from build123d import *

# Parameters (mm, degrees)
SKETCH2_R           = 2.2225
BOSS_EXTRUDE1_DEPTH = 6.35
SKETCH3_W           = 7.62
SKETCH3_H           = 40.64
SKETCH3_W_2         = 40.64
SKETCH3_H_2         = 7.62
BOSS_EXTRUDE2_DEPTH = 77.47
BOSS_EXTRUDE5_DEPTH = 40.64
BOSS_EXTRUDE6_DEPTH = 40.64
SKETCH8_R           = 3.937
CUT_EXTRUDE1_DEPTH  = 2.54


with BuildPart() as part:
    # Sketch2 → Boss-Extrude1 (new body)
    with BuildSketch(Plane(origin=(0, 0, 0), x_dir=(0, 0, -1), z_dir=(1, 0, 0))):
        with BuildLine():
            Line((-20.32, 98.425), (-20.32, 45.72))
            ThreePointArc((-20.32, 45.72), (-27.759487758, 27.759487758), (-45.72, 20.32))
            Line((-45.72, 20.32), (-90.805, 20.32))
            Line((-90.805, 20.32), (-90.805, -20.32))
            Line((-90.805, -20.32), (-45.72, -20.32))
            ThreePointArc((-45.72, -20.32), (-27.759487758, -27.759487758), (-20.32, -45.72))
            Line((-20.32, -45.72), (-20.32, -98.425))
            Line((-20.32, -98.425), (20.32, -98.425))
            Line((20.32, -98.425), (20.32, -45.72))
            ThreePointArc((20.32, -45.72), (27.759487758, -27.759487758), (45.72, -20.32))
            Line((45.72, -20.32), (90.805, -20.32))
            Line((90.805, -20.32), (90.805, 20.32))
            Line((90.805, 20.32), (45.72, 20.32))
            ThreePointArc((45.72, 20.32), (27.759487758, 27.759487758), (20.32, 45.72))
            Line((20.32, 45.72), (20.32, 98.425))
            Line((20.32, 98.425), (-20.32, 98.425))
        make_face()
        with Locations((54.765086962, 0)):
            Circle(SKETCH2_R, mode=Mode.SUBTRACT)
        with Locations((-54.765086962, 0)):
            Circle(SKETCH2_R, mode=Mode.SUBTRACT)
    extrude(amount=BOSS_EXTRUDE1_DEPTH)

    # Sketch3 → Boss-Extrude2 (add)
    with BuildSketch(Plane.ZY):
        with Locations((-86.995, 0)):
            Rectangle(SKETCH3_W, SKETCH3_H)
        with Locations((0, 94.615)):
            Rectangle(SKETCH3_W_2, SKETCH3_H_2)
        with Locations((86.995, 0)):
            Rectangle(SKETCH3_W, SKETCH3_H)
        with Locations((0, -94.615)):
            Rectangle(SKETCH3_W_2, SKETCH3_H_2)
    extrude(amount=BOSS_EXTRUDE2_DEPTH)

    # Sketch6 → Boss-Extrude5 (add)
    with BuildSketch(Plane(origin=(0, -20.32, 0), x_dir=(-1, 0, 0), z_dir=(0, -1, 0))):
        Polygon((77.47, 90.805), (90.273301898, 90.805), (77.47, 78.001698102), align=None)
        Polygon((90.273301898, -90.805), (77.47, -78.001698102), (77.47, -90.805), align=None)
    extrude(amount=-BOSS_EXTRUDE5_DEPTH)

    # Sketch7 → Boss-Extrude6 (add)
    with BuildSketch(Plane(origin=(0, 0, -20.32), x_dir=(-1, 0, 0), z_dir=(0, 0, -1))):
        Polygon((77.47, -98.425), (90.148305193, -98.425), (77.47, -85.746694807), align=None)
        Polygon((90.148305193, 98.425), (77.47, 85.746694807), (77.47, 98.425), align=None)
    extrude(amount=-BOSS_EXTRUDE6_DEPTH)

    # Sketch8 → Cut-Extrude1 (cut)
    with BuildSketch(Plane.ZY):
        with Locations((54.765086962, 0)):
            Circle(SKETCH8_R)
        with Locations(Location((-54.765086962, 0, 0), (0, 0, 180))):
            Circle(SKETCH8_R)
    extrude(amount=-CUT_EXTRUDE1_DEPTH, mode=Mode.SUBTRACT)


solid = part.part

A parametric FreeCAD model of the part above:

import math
import FreeCAD as App
import Part
import Sketcher

V = App.Vector
Q = App.Units.Quantity


def add_polygon(sketch, points):
    """Adds a closed chain of lines whose ends are joined by coincident constraints."""
    first, n = sketch.GeometryCount, len(points)
    for a, b in zip(points, points[1:] + points[:1]):
        sketch.addGeometry(Part.LineSegment(App.Vector(*a, 0), App.Vector(*b, 0)), False)
    for i in range(n):
        sketch.addConstraint(Sketcher.Constraint("Coincident", first + i, 2, first + (i + 1) % n, 1))

doc = App.newDocument("Part")
params = doc.addObject("Spreadsheet::Sheet", "Params")
for row, (alias, value) in enumerate([
    ("sketch1_radius", "1 in"),
    ("sketch1_diameter", "0.175 in"),
    ("sketch1_width", "1.6 in"),
    ("sketch1_width2", "2.075 in"),
    ("sketch1_height", "1.775 in"),
    ("pad1_length", "0.25 in"),
    ("sketch2_width", "1.6 in"),
    ("sketch2_width2", "0.3 in"),
    ("pad2_length", "3.05 in"),
    ("pad3_length", "1.6 in"),
    ("pad4_length", "1.6 in"),
    ("sketch5_diameter", "0.31 in"),
    ("pocket1_length", "0.1 in"),
], start=1):
    params.set(f"A{row}", alias)
    params.set(f"B{row}", "=" + value)
    params.setAlias(f"B{row}", alias)

body = doc.addObject("PartDesign::Body", "Body")

# Sketch on YZ plane
sketch1 = body.newObject("Sketcher::SketchObject", "Sketch")
sketch1.AttachmentSupport = (doc.getObject("YZ_Plane"), [""])
sketch1.MapMode = "FlatFace"
sketch1.addGeometry(Part.LineSegment(V(98.425, 20.32, 0), V(45.72, 20.32, 0)), False)
sketch1.addGeometry(Part.ArcOfCircle(Part.Circle(V(45.72, 45.72, 0), V(0, 0, 1), 25.4), math.radians(180), math.radians(270)), False)
sketch1.addGeometry(Part.LineSegment(V(20.32, 45.72, 0), V(20.32, 90.805, 0)), False)
sketch1.addGeometry(Part.LineSegment(V(20.32, 90.805, 0), V(-20.32, 90.805, 0)), False)
sketch1.addGeometry(Part.LineSegment(V(-20.32, 90.805, 0), V(-20.32, 45.72, 0)), False)
sketch1.addGeometry(Part.ArcOfCircle(Part.Circle(V(-45.72, 45.72, 0), V(0, 0, 1), 25.4), math.radians(-90), math.radians(0)), False)
sketch1.addGeometry(Part.LineSegment(V(-45.72, 20.32, 0), V(-98.425, 20.32, 0)), False)
sketch1.addGeometry(Part.LineSegment(V(-98.425, 20.32, 0), V(-98.425, -20.32, 0)), False)
sketch1.addGeometry(Part.LineSegment(V(-98.425, -20.32, 0), V(-45.72, -20.32, 0)), False)
sketch1.addGeometry(Part.ArcOfCircle(Part.Circle(V(-45.72, -45.72, 0), V(0, 0, 1), 25.4), math.radians(0), math.radians(90)), False)
sketch1.addGeometry(Part.LineSegment(V(-20.32, -45.72, 0), V(-20.32, -90.805, 0)), False)
sketch1.addGeometry(Part.LineSegment(V(-20.32, -90.805, 0), V(20.32, -90.805, 0)), False)
sketch1.addGeometry(Part.LineSegment(V(20.32, -90.805, 0), V(20.32, -45.72, 0)), False)
sketch1.addGeometry(Part.ArcOfCircle(Part.Circle(V(45.72, -45.72, 0), V(0, 0, 1), 25.4), math.radians(90), math.radians(180)), False)
sketch1.addGeometry(Part.LineSegment(V(45.72, -20.32, 0), V(98.425, -20.32, 0)), False)
sketch1.addGeometry(Part.LineSegment(V(98.425, -20.32, 0), V(98.425, 20.32, 0)), False)
sketch1.addGeometry(Part.Circle(V(0, 54.765087, 0), V(0, 0, 1), 2.2225), False)
sketch1.addGeometry(Part.Circle(V(0, -54.765087, 0), V(0, 0, 1), 2.2225), False)
sketch1.addConstraint(Sketcher.Constraint("Tangent", 0, 2, 1, 2))
sketch1.addConstraint(Sketcher.Constraint("Tangent", 1, 1, 2, 1))
sketch1.addConstraint(Sketcher.Constraint("Coincident", 2, 2, 3, 1))
sketch1.addConstraint(Sketcher.Constraint("Coincident", 3, 2, 4, 1))
sketch1.addConstraint(Sketcher.Constraint("Tangent", 4, 2, 5, 2))
sketch1.addConstraint(Sketcher.Constraint("Tangent", 5, 1, 6, 1))
sketch1.addConstraint(Sketcher.Constraint("Coincident", 6, 2, 7, 1))
sketch1.addConstraint(Sketcher.Constraint("Coincident", 7, 2, 8, 1))
sketch1.addConstraint(Sketcher.Constraint("Tangent", 8, 2, 9, 2))
sketch1.addConstraint(Sketcher.Constraint("Tangent", 9, 1, 10, 1))
sketch1.addConstraint(Sketcher.Constraint("Coincident", 10, 2, 11, 1))
sketch1.addConstraint(Sketcher.Constraint("Coincident", 11, 2, 12, 1))
sketch1.addConstraint(Sketcher.Constraint("Tangent", 12, 2, 13, 2))
sketch1.addConstraint(Sketcher.Constraint("Tangent", 13, 1, 14, 1))
sketch1.addConstraint(Sketcher.Constraint("Coincident", 14, 2, 15, 1))
sketch1.addConstraint(Sketcher.Constraint("Coincident", 15, 2, 0, 1))
sketch1.addConstraint(Sketcher.Constraint("Horizontal", 0))
sketch1.addConstraint(Sketcher.Constraint("Vertical", 2))
sketch1.addConstraint(Sketcher.Constraint("Horizontal", 3))
sketch1.addConstraint(Sketcher.Constraint("Vertical", 4))
sketch1.addConstraint(Sketcher.Constraint("Horizontal", 6))
sketch1.addConstraint(Sketcher.Constraint("Vertical", 7))
sketch1.addConstraint(Sketcher.Constraint("Horizontal", 8))
sketch1.addConstraint(Sketcher.Constraint("Vertical", 10))
sketch1.addConstraint(Sketcher.Constraint("Horizontal", 11))
sketch1.addConstraint(Sketcher.Constraint("Vertical", 12))
sketch1.addConstraint(Sketcher.Constraint("Horizontal", 14))
sketch1.addConstraint(Sketcher.Constraint("Vertical", 15))
sketch1.addConstraint(Sketcher.Constraint("Equal", 1, 5))
sketch1.addConstraint(Sketcher.Constraint("Equal", 5, 9))
sketch1.addConstraint(Sketcher.Constraint("Equal", 9, 13))
sketch1.addConstraint(Sketcher.Constraint("Equal", 16, 17))
sketch1.addConstraint(Sketcher.Constraint("Symmetric", 1, 3, 9, 3, -1, 1))
sketch1.addConstraint(Sketcher.Constraint("Symmetric", 5, 3, 13, 3, -1, 1))
sketch1.addConstraint(Sketcher.Constraint("Symmetric", 16, 3, 17, 3, -1, 1))
sketch1.addConstraint(Sketcher.Constraint("Symmetric", 1, 3, 5, 3, -2))
sketch1.addConstraint(Sketcher.Constraint("PointOnObject", 16, 3, -2))
sketch1.addConstraint(Sketcher.Constraint("Equal", 0, 6))
sketch1.addConstraint(Sketcher.Constraint("Equal", 11, 7))
sketch1.addConstraint(Sketcher.Constraint("Equal", 4, 10))
sketch1.addConstraint(Sketcher.Constraint("Radius", 1, Q("1 in")))
sketch1.addConstraint(Sketcher.Constraint("Diameter", 16, Q("0.175 in")))
sketch1.addConstraint(Sketcher.Constraint("DistanceX", 3, 2, 3, 1, Q("1.6 in")))
sketch1.addConstraint(Sketcher.Constraint("DistanceX", 0, 2, 0, 1, Q("2.075 in")))
sketch1.addConstraint(Sketcher.Constraint("DistanceY", 2, 1, 2, 2, Q("1.775 in")))
sketch1.addConstraint(Sketcher.Constraint("DistanceY", -1, 1, 16, 3, Q("54.765087 mm")))
sketch1.setExpression("Constraints[40]", "Params.sketch1_radius")
sketch1.setExpression("Constraints[41]", "Params.sketch1_diameter")
sketch1.setExpression("Constraints[42]", "Params.sketch1_width")
sketch1.setExpression("Constraints[43]", "Params.sketch1_width2")
sketch1.setExpression("Constraints[44]", "Params.sketch1_height")
pad1 = body.newObject("PartDesign::Pad", "Pad")
pad1.Profile = sketch1
pad1.setExpression("Length", "Params.pad1_length")

# Sketch on YZ plane
sketch2 = body.newObject("Sketcher::SketchObject", "Sketch001")
sketch2.AttachmentSupport = (doc.getObject("YZ_Plane"), [""])
sketch2.MapMode = "FlatFace"
add_polygon(sketch2, [(20.32, -90.805), (-20.32, -90.805), (-20.32, -83.185), (20.32, -83.185)])  # lines 0-3
add_polygon(sketch2, [(98.425, -20.32), (90.805, -20.32), (90.805, 20.32), (98.425, 20.32)])  # lines 4-7
add_polygon(sketch2, [(20.32, 83.185), (-20.32, 83.185), (-20.32, 90.805), (20.32, 90.805)])  # lines 8-11
add_polygon(sketch2, [(-90.805, -20.32), (-98.425, -20.32), (-98.425, 20.32), (-90.805, 20.32)])  # lines 12-15
sketch2.addConstraint(Sketcher.Constraint("Horizontal", 0))
sketch2.addConstraint(Sketcher.Constraint("Vertical", 1))
sketch2.addConstraint(Sketcher.Constraint("Horizontal", 2))
sketch2.addConstraint(Sketcher.Constraint("Vertical", 3))
sketch2.addConstraint(Sketcher.Constraint("Horizontal", 4))
sketch2.addConstraint(Sketcher.Constraint("Vertical", 5))
sketch2.addConstraint(Sketcher.Constraint("Horizontal", 6))
sketch2.addConstraint(Sketcher.Constraint("Vertical", 7))
sketch2.addConstraint(Sketcher.Constraint("Horizontal", 8))
sketch2.addConstraint(Sketcher.Constraint("Vertical", 9))
sketch2.addConstraint(Sketcher.Constraint("Horizontal", 10))
sketch2.addConstraint(Sketcher.Constraint("Vertical", 11))
sketch2.addConstraint(Sketcher.Constraint("Horizontal", 12))
sketch2.addConstraint(Sketcher.Constraint("Vertical", 13))
sketch2.addConstraint(Sketcher.Constraint("Horizontal", 14))
sketch2.addConstraint(Sketcher.Constraint("Vertical", 15))
sketch2.addConstraint(Sketcher.Constraint("Symmetric", 2, 2, 8, 2, -1, 1))
sketch2.addConstraint(Sketcher.Constraint("Symmetric", 0, 2, 10, 2, -1, 1))
sketch2.addConstraint(Sketcher.Constraint("Symmetric", 6, 2, 12, 2, -1, 1))
sketch2.addConstraint(Sketcher.Constraint("Symmetric", 4, 2, 14, 2, -1, 1))
sketch2.addConstraint(Sketcher.Constraint("Horizontal", 7, 2, 12, 2))
sketch2.addConstraint(Sketcher.Constraint("Vertical", 1, 2, 8, 2))
sketch2.addConstraint(Sketcher.Constraint("Equal", 14, 1))
sketch2.addConstraint(Sketcher.Constraint("Equal", 10, 5))
sketch2.addConstraint(Sketcher.Constraint("DistanceX", 0, 2, 0, 1, Q("1.6 in")))
sketch2.addConstraint(Sketcher.Constraint("DistanceX", 4, 2, 4, 1, Q("0.3 in")))
sketch2.addConstraint(Sketcher.Constraint("DistanceY", 1, 2, 8, 2, Q("6.55 in")))
sketch2.addConstraint(Sketcher.Constraint("DistanceX", -1, 1, 4, 2, Q("3.575 in")))
sketch2.setExpression("Constraints[40]", "Params.sketch2_width")
sketch2.setExpression("Constraints[41]", "Params.sketch2_width2")
pad2 = body.newObject("PartDesign::Pad", "Pad001")
pad2.Profile = sketch2
pad2.setExpression("Length", "Params.pad2_length")
pad2.Reversed = True

# Sketch on XZ plane
sketch3 = body.newObject("Sketcher::SketchObject", "Sketch002")
sketch3.AttachmentSupport = (doc.getObject("XZ_Plane"), [""])
sketch3.MapMode = "FlatFace"
sketch3.AttachmentOffset = App.Placement(V(0, 0, 0.8 * 25.4), App.Rotation())
add_polygon(sketch3, [(-90.273302, -90.805), (-77.47, -90.805), (-77.47, -78.001698)])  # lines 0-2
add_polygon(sketch3, [(-90.273302, 90.805), (-77.47, 78.001698), (-77.47, 90.805)])  # lines 3-5
sketch3.addConstraint(Sketcher.Constraint("Horizontal", 0))
sketch3.addConstraint(Sketcher.Constraint("Vertical", 1))
sketch3.addConstraint(Sketcher.Constraint("Vertical", 4))
sketch3.addConstraint(Sketcher.Constraint("Horizontal", 5))
sketch3.addConstraint(Sketcher.Constraint("Symmetric", 1, 2, 3, 2, -1))
sketch3.addConstraint(Sketcher.Constraint("Symmetric", 2, 2, 5, 2, -1))
sketch3.addConstraint(Sketcher.Constraint("Perpendicular", 2, 3))
sketch3.addConstraint(Sketcher.Constraint("DistanceX", 0, 2, -1, 1, Q("3.05 in")))
sketch3.addConstraint(Sketcher.Constraint("DistanceY", 0, 2, 4, 2, Q("7.15 in")))
sketch3.addConstraint(Sketcher.Constraint("DistanceX", 0, 1, 0, 2, Q("12.803302 mm")))
pad3 = body.newObject("PartDesign::Pad", "Pad002")
pad3.Profile = sketch3
pad3.setExpression("Length", "Params.pad3_length")
pad3.Reversed = True

# Sketch on XY plane
sketch4 = body.newObject("Sketcher::SketchObject", "Sketch003")
sketch4.AttachmentSupport = (doc.getObject("XY_Plane"), [""])
sketch4.MapMode = "FlatFace"
sketch4.AttachmentOffset = App.Placement(V(0, 0, -0.8 * 25.4), App.Rotation())
add_polygon(sketch4, [(-77.47, -98.425), (-90.148305, -98.425), (-77.47, -85.746695)])  # lines 0-2
add_polygon(sketch4, [(-77.47, 85.746695), (-90.148305, 98.425), (-77.47, 98.425)])  # lines 3-5
sketch4.addConstraint(Sketcher.Constraint("Horizontal", 0))
sketch4.addConstraint(Sketcher.Constraint("Vertical", 2))
sketch4.addConstraint(Sketcher.Constraint("Horizontal", 4))
sketch4.addConstraint(Sketcher.Constraint("Vertical", 5))
sketch4.addConstraint(Sketcher.Constraint("Symmetric", 0, 2, 3, 2, -1))
sketch4.addConstraint(Sketcher.Constraint("Symmetric", 1, 2, 5, 2, -1))
sketch4.addConstraint(Sketcher.Constraint("Perpendicular", 1, 3))
sketch4.addConstraint(Sketcher.Constraint("DistanceX", 1, 2, -1, 1, Q("3.05 in")))
sketch4.addConstraint(Sketcher.Constraint("DistanceY", 0, 2, 3, 2, Q("7.75 in")))
sketch4.addConstraint(Sketcher.Constraint("Distance", 1, Q("17.929831 mm")))
pad4 = body.newObject("PartDesign::Pad", "Pad003")
pad4.Profile = sketch4
pad4.setExpression("Length", "Params.pad4_length")

# Sketch on YZ plane
sketch5 = body.newObject("Sketcher::SketchObject", "Sketch004")
sketch5.AttachmentSupport = (doc.getObject("YZ_Plane"), [""])
sketch5.MapMode = "FlatFace"
sketch5.addGeometry(Part.Circle(V(0, 54.765087, 0), V(0, 0, 1), 3.937), False)
sketch5.addGeometry(Part.Circle(V(0, -54.765087, 0), V(0, 0, 1), 3.937), False)
sketch5.addConstraint(Sketcher.Constraint("Equal", 0, 1))
sketch5.addConstraint(Sketcher.Constraint("Symmetric", 0, 3, 1, 3, -1, 1))
sketch5.addConstraint(Sketcher.Constraint("PointOnObject", 0, 3, -2))
sketch5.addConstraint(Sketcher.Constraint("Diameter", 0, Q("0.31 in")))
sketch5.addConstraint(Sketcher.Constraint("DistanceY", -1, 1, 0, 3, Q("54.765087 mm")))
sketch5.setExpression("Constraints[3]", "Params.sketch5_diameter")
pocket1 = body.newObject("PartDesign::Pocket", "Pocket")
pocket1.Profile = sketch5
pocket1.setExpression("Length", "Params.pocket1_length")
pocket1.Reversed = True

doc.recompute()
